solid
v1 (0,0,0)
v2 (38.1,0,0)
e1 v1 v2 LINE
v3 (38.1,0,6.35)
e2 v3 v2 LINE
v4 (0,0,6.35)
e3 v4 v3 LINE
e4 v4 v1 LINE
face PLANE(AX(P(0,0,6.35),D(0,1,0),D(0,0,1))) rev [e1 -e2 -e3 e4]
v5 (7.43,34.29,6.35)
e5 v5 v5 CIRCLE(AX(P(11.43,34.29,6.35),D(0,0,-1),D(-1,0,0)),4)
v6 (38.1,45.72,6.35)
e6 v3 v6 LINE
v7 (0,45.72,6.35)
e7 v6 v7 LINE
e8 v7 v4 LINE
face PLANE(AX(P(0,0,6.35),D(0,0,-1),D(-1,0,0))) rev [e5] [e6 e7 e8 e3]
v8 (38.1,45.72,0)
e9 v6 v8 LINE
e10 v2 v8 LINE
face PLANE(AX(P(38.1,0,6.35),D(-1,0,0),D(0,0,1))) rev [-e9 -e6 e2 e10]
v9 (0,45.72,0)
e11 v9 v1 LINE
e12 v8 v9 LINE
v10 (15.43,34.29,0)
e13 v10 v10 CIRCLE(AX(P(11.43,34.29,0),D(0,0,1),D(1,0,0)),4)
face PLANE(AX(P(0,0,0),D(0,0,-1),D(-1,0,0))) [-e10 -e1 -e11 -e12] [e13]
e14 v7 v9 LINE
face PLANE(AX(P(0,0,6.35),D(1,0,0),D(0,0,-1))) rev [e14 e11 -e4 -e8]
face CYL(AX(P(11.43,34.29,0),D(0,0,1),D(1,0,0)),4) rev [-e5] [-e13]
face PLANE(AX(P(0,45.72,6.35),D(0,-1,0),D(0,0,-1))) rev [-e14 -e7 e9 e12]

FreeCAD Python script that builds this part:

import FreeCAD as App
import Part
import Sketcher
from FreeCAD import Vector
Q = App.Units.Quantity

doc = App.newDocument("Part")
params = doc.addObject("Spreadsheet::Sheet", "Params")
for row, (alias, value) in enumerate([
    ("sketch1_width", "1.5 in"),
    ("sketch1_height", "1.8 in"),
    ("pad1_length", "0.25 in"),
], start=1):
    params.set(f"A{row}", alias)
    params.set(f"B{row}", "=" + value)
    params.setAlias(f"B{row}", alias)

body = doc.addObject("PartDesign::Body", "Body")

sketch1 = doc.addObject("Sketcher::SketchObject", "Sketch")
body.addObject(sketch1)
sketch1.AttachmentSupport = (doc.XY_Plane, [""])
sketch1.MapMode = "FlatFace"
sketch1.addGeometry([
    Part.LineSegment(Vector(0, 46, 0), Vector(0, 0, 0)),
    Part.LineSegment(Vector(0, 0, 0), Vector(38, 0, 0)),
    Part.LineSegment(Vector(38, 0, 0), Vector(38, 46, 0)),
    Part.LineSegment(Vector(38, 46, 0), Vector(0, 46, 0)),
], False)
sketch1.addConstraint([
    Sketcher.Constraint("Coincident", 0, 2, 1, 1),
    Sketcher.Constraint("Coincident", 1, 2, 2, 1),
    Sketcher.Constraint("Coincident", 2, 2, 3, 1),
    Sketcher.Constraint("Coincident", 3, 2, 0, 1),
    Sketcher.Constraint("Vertical", 0),
    Sketcher.Constraint("Horizontal", 1),
    Sketcher.Constraint("Vertical", 2),
    Sketcher.Constraint("Horizontal", 3),
    Sketcher.Constraint("Coincident", 0, 2, -1, 1),
    Sketcher.Constraint("DistanceX", 1, 1, 1, 2, Q("1.5 in")),
    Sketcher.Constraint("DistanceY", 0, 2, 0, 1, Q("1.8 in")),
])
sketch1.setExpression("Constraints[9]", "Params.sketch1_width")
sketch1.setExpression("Constraints[10]", "Params.sketch1_height")
pad1 = doc.addObject("PartDesign::Pad", "Pad")
body.addObject(pad1)
pad1.Profile = sketch1
pad1.setExpression("Length", "Params.pad1_length")

sketch2 = doc.addObject("Sketcher::SketchObject", "Sketch001")
body.addObject(sketch2)
sketch2.AttachmentSupport = (doc.XY_Plane, [""])
sketch2.MapMode = "FlatFace"
sketch2.AttachmentOffset = App.Placement(Vector(0, 0, 0.25 * 25.4), App.Rotation())
sketch2.addGeometry(Part.Circle(Vector(11.4, 34.3, 0), Vector(0, 0, 1), 4), False)
sketch2.addConstraint([
    Sketcher.Constraint("Diameter", 0, 8.0),
    Sketcher.Constraint("DistanceX", -1, 1, 0, 3, Q("0.45 in")),
    Sketcher.Constraint("DistanceY", -1, 1, 0, 3, Q("1.35 in")),
])
pocket1 = doc.addObject("PartDesign::Pocket", "Pocket")
body.addObject(pocket1)
pocket1.Profile = sketch2
pocket1.Type = "ThroughAll"
pocket1.Midplane = True

doc.recompute()
